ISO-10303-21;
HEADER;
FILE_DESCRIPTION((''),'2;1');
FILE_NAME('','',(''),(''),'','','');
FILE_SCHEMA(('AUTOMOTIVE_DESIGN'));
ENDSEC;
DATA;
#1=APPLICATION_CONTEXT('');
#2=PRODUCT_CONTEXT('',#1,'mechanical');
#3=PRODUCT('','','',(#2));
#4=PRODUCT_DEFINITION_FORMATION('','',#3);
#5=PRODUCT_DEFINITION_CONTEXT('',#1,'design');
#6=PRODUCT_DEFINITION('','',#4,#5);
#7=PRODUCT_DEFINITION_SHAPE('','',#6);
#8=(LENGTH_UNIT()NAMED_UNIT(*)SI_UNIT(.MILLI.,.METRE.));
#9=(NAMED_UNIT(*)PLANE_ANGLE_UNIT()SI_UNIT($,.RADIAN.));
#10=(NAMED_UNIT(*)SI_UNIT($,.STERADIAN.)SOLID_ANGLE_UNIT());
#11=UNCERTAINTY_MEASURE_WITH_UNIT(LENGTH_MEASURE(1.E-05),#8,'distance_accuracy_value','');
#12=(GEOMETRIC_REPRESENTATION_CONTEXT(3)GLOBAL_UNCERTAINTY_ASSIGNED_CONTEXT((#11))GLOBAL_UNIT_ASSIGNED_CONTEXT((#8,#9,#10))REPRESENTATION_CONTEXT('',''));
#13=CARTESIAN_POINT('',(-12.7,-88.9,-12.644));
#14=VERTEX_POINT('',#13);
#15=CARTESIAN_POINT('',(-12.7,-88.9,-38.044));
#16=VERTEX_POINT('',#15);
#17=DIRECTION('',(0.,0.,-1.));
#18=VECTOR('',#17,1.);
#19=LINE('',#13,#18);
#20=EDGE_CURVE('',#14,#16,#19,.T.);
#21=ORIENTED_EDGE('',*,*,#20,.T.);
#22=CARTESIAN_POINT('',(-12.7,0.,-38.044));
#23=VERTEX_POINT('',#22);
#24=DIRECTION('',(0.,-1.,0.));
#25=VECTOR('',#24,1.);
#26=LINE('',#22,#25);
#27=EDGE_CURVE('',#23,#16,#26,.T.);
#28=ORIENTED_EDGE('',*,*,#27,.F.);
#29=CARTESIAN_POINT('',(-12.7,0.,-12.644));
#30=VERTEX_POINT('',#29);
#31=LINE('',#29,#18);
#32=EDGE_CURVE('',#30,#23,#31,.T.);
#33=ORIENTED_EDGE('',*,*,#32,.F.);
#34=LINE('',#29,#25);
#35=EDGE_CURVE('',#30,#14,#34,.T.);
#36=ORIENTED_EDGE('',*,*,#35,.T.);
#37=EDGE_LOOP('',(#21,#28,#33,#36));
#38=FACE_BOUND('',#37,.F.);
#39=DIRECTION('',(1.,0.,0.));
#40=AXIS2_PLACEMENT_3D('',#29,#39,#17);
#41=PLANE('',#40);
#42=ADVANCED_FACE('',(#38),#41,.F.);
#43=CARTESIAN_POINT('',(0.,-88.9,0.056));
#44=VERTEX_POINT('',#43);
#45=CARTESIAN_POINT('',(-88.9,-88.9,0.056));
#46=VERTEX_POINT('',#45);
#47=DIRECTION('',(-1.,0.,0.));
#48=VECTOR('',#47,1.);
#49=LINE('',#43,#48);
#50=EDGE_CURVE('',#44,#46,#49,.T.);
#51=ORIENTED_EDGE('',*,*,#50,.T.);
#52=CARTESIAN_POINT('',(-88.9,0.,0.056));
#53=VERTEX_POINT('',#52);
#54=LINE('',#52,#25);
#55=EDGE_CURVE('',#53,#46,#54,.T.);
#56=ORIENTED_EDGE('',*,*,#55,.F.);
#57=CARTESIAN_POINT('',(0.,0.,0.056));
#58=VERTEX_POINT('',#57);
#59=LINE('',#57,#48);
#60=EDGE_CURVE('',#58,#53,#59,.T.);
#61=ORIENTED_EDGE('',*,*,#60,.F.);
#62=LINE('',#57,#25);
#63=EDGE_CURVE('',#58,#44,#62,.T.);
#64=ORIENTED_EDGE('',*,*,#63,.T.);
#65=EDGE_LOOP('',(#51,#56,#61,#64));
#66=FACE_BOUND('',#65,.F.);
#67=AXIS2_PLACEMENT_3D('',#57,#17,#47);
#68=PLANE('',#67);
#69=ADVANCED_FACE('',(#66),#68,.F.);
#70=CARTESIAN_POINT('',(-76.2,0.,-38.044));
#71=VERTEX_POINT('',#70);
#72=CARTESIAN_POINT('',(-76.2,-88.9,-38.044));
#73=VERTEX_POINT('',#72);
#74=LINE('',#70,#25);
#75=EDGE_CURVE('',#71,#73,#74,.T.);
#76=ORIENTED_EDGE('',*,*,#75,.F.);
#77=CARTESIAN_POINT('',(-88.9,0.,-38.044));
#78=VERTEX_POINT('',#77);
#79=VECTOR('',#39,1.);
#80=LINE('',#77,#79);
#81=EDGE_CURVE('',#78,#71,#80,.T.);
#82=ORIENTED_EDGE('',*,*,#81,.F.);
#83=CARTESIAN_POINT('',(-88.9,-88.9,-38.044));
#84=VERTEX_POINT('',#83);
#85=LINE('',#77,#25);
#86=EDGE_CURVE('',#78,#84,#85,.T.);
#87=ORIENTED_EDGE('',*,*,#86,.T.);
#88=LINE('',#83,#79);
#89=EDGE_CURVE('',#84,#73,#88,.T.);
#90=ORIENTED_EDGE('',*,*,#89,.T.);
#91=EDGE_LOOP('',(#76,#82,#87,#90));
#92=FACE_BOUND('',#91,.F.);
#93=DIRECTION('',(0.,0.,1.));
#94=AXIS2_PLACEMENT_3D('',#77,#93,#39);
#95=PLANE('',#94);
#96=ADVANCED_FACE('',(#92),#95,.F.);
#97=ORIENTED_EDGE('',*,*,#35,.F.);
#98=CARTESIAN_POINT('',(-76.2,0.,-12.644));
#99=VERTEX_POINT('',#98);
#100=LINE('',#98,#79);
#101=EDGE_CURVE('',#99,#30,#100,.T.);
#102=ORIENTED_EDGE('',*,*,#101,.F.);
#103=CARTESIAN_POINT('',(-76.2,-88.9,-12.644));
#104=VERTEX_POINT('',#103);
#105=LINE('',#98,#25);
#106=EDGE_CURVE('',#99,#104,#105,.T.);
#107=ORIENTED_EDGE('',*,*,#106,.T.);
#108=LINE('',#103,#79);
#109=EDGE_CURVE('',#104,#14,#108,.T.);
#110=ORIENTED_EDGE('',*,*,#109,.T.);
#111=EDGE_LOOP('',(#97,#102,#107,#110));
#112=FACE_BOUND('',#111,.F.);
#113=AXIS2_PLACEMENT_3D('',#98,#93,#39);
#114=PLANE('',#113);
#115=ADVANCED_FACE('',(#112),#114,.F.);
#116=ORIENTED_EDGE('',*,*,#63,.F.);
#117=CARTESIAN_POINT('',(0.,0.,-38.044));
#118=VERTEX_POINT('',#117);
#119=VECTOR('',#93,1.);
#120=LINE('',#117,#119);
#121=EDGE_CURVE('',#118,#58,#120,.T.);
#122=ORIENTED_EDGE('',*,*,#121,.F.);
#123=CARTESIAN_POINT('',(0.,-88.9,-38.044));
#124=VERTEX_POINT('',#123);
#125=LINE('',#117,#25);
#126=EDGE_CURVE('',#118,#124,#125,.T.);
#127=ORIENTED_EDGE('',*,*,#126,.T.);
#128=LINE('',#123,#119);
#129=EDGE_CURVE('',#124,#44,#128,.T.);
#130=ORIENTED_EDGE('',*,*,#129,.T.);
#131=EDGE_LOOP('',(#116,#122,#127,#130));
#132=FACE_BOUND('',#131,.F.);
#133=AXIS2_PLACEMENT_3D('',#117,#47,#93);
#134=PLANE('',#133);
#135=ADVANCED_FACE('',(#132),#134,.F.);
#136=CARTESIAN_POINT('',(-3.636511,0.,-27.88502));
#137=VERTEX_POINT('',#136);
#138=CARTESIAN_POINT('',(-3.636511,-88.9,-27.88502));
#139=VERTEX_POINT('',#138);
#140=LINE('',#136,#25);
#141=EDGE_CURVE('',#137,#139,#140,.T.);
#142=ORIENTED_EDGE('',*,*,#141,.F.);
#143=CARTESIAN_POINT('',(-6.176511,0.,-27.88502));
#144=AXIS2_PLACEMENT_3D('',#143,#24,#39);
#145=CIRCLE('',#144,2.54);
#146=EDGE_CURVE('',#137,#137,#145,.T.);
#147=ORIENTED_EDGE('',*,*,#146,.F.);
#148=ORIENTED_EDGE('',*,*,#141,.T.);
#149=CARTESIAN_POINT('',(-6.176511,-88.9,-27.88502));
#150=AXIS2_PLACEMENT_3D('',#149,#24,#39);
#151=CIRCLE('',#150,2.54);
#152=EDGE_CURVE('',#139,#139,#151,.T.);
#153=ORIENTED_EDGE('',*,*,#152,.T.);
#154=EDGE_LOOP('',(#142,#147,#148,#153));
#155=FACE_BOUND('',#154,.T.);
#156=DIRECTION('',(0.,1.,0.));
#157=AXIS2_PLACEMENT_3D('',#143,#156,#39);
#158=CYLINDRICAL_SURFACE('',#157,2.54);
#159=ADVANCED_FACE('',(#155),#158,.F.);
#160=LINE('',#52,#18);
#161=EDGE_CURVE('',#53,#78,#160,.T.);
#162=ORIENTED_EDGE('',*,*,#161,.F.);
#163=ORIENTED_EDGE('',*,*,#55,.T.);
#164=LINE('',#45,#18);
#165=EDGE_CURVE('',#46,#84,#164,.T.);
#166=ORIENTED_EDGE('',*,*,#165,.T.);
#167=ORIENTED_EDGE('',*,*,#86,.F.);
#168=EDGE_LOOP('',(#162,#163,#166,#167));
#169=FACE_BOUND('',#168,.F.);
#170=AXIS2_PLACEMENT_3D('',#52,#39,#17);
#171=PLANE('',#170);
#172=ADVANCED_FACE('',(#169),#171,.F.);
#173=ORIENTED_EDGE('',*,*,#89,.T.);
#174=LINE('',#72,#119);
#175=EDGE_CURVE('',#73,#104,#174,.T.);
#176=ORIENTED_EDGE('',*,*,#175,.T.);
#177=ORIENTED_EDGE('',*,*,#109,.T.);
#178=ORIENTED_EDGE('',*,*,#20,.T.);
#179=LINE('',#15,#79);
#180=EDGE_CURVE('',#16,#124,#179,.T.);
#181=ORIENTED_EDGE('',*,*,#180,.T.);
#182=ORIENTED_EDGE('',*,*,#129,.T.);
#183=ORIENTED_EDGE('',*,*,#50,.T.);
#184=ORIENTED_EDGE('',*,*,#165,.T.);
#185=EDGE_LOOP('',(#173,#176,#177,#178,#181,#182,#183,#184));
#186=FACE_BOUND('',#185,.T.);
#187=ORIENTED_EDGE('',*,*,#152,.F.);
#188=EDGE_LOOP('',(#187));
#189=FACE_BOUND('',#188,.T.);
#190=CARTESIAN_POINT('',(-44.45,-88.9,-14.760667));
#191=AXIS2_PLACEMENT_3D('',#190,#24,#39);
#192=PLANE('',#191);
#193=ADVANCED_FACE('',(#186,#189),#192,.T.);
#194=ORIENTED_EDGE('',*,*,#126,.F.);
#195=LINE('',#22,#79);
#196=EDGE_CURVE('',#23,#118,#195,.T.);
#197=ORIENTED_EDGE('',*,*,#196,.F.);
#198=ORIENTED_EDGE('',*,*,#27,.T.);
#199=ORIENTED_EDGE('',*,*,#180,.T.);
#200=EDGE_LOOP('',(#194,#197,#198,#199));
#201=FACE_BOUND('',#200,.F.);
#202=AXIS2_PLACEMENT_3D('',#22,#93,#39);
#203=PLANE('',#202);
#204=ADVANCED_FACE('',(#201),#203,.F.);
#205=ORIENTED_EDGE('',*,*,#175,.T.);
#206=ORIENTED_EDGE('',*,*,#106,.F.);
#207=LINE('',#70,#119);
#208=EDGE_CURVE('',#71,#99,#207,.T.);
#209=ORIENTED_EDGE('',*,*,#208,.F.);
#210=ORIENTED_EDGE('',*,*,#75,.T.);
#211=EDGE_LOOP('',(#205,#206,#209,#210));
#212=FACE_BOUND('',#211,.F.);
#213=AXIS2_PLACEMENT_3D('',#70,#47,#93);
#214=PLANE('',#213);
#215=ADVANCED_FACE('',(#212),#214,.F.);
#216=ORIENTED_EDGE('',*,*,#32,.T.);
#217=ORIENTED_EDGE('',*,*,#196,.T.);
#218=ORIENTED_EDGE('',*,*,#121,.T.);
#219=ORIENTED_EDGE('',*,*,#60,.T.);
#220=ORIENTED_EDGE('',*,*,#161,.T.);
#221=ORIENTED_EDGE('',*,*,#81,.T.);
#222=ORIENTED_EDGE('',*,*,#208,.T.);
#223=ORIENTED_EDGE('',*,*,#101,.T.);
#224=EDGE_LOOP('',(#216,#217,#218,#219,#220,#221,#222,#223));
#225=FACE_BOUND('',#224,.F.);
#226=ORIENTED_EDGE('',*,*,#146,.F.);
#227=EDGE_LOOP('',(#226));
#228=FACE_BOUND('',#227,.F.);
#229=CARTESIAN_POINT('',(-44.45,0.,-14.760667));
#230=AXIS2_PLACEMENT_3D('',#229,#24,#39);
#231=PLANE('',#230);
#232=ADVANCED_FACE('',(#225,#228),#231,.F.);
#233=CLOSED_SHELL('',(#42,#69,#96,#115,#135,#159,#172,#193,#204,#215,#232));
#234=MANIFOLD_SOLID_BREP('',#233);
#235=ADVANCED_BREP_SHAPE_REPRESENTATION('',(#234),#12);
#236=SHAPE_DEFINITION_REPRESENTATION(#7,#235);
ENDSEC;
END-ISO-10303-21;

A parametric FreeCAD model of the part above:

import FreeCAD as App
import Part
import Sketcher

V = App.Vector
Q = App.Units.Quantity

doc = App.newDocument("Part")
body = doc.addObject("PartDesign::Body", "Body")

sketch1 = body.newObject("Sketcher::SketchObject", "Sketch")
sketch1.AttachmentSupport = (doc.getObject("XZ_Plane"), [""])
sketch1.MapMode = "FlatFace"
sketch1.addGeometry([
    Part.LineSegment(V(-88.9, -38, 0), V(-76.2, -38, 0)),
    Part.LineSegment(V(-76.2, -38, 0), V(-76.2, -12.6, 0)),
    Part.LineSegment(V(-76.2, -12.6, 0), V(-12.7, -12.6, 0)),
    Part.LineSegment(V(-12.7, -12.6, 0), V(-12.7, -38, 0)),
    Part.LineSegment(V(-12.7, -38, 0), V(0, -38, 0)),
    Part.LineSegment(V(0, -38, 0), V(0, 0.1, 0)),
    Part.LineSegment(V(0, 0.1, 0), V(-88.9, 0.1, 0)),
    Part.LineSegment(V(-88.9, 0.1, 0), V(-88.9, -38, 0)),
    Part.Circle(V(-6.2, -27.9, 0), V(0, 0, 1), 2.5),
], False)
sketch1.addConstraint([
    Sketcher.Constraint("Coincident", 0, 2, 1, 1),
    Sketcher.Constraint("Coincident", 1, 2, 2, 1),
    Sketcher.Constraint("Coincident", 2, 2, 3, 1),
    Sketcher.Constraint("Coincident", 3, 2, 4, 1),
    Sketcher.Constraint("Coincident", 4, 2, 5, 1),
    Sketcher.Constraint("Coincident", 5, 2, 6, 1),
    Sketcher.Constraint("Coincident", 6, 2, 7, 1),
    Sketcher.Constraint("Coincident", 7, 2, 0, 1),
    Sketcher.Constraint("Horizontal", 0),
    Sketcher.Constraint("Vertical", 1),
    Sketcher.Constraint("Horizontal", 2),
    Sketcher.Constraint("Vertical", 3),
    Sketcher.Constraint("Horizontal", 4),
    Sketcher.Constraint("Vertical", 5),
    Sketcher.Constraint("Horizontal", 6),
    Sketcher.Constraint("Vertical", 7),
    Sketcher.Constraint("PointOnObject", 4, 2, -2),
    Sketcher.Constraint("Horizontal", 0, 2, 3, 2),
    Sketcher.Constraint("Equal", 0, 4),
    Sketcher.Constraint("Diameter", 8, Q("0.2 in")),
    Sketcher.Constraint("DistanceY", 1, 1, 1, 2, Q("1 in")),
    Sketcher.Constraint("DistanceX", 0, 1, 0, 2, Q("0.5 in")),
    Sketcher.Constraint("DistanceX", 2, 1, 2, 2, Q("2.5 in")),
    Sketcher.Constraint("DistanceY", 5, 1, 5, 2, Q("1.5 in")),
    Sketcher.Constraint("DistanceY", 0, 2, -1, 1, Q("38.044 mm")),
    Sketcher.Constraint("DistanceX", 8, 3, -1, 1, Q("6.176511 mm")),
    Sketcher.Constraint("DistanceY", 8, 3, -1, 1, Q("27.88502 mm")),
])
pad1 = body.newObject("PartDesign::Pad", "Pad")
pad1.Profile = sketch1
pad1.Length = Q("3.5 in")
body2 = doc.addObject("PartDesign::Body", "Body001")

sketch2 = body2.newObject("Sketcher::SketchObject", "Sketch001")
sketch2.AttachmentSupport = (doc.getObject("XZ_Plane001"), [""])
sketch2.MapMode = "FlatFace"
sketch2.addGeometry(Part.Circle(V(-59, -29.2, 0), V(0, 0, 1), 2.5), False)
sketch2.addConstraint([
    Sketcher.Constraint("Diameter", 0, Q("0.2 in")),
    Sketcher.Constraint("DistanceX", 0, 3, -1, 1, Q("59.0428 mm")),
    Sketcher.Constraint("DistanceY", 0, 3, -1, 1, Q("29.241523 mm")),
])
pad2 = body2.newObject("PartDesign::Pad", "Pad001")
pad2.Profile = sketch2
pad2.Length = Q("3.5 in")
body2.Visibility = False

doc.recompute()
